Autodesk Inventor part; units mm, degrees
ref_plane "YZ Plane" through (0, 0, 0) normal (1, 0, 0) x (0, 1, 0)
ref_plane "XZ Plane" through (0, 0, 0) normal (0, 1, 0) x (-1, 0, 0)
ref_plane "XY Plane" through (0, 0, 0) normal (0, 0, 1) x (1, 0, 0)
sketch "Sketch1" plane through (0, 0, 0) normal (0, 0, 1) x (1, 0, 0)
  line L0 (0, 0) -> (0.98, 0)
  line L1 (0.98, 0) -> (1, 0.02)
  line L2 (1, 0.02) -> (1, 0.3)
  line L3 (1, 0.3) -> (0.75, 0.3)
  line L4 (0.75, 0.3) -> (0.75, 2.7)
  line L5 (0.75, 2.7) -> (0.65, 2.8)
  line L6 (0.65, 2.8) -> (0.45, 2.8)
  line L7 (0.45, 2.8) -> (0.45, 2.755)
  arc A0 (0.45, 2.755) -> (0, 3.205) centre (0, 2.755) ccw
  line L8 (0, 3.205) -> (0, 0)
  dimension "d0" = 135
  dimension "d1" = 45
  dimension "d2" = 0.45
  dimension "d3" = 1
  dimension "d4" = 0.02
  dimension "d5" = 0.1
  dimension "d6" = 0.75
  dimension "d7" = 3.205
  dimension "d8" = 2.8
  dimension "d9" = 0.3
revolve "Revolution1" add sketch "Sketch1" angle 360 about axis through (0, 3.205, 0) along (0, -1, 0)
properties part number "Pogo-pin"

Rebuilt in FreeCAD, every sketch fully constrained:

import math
import FreeCAD as App
import Part
import Sketcher
Q = App.Units.Quantity

doc = App.newDocument("Part")
body = doc.addObject("PartDesign::Body", "Body")

# Sketch on XY plane
sketch1 = body.newObject("Sketcher::SketchObject", "Sketch")
sketch1.AttachmentSupport = (doc.getObject("XY_Plane"), [""])
sketch1.MapMode = "FlatFace"
sketch1.addGeometry([
    Part.LineSegment(App.Vector(0, 3.205, 0), App.Vector(0, 0, 0)),  # 0
    Part.LineSegment(App.Vector(0, 0, 0), App.Vector(0.98, 0, 0)),  # 1
    Part.LineSegment(App.Vector(0.98, 0, 0), App.Vector(1, 0.02, 0)),  # 2
    Part.LineSegment(App.Vector(1, 0.02, 0), App.Vector(1, 0.3, 0)),  # 3
    Part.LineSegment(App.Vector(1, 0.3, 0), App.Vector(0.75, 0.3, 0)),  # 4
    Part.LineSegment(App.Vector(0.75, 0.3, 0), App.Vector(0.75, 2.7, 0)),  # 5
    Part.LineSegment(App.Vector(0.75, 2.7, 0), App.Vector(0.65, 2.8, 0)),  # 6
    Part.LineSegment(App.Vector(0.65, 2.8, 0), App.Vector(0.45, 2.8, 0)),  # 7
    Part.LineSegment(App.Vector(0.45, 2.8, 0), App.Vector(0.45, 2.755, 0)),  # 8
    Part.ArcOfCircle(Part.Circle(App.Vector(0, 2.755, 0), App.Vector(0, 0, 1), 0.45), math.radians(0), math.radians(90)),  # 9
], False)
sketch1.addConstraint([
    Sketcher.Constraint("Coincident", 0, 2, 1, 1),
    Sketcher.Constraint("Coincident", 1, 2, 2, 1),
    Sketcher.Constraint("Coincident", 2, 2, 3, 1),
    Sketcher.Constraint("Coincident", 3, 2, 4, 1),
    Sketcher.Constraint("Coincident", 4, 2, 5, 1),
    Sketcher.Constraint("Coincident", 5, 2, 6, 1),
    Sketcher.Constraint("Coincident", 6, 2, 7, 1),
    Sketcher.Constraint("Coincident", 7, 2, 8, 1),
    Sketcher.Constraint("Tangent", 8, 2, 9, 1),
    Sketcher.Constraint("Coincident", 9, 2, 0, 1),
    Sketcher.Constraint("Vertical", 0),
    Sketcher.Constraint("Horizontal", 1),
    Sketcher.Constraint("Vertical", 3),
    Sketcher.Constraint("Horizontal", 4),
    Sketcher.Constraint("Vertical", 5),
    Sketcher.Constraint("Horizontal", 7),
    Sketcher.Constraint("Vertical", 8),
    Sketcher.Constraint("Coincident", 0, 2, -1, 1),
    Sketcher.Constraint("PointOnObject", 9, 3, -2),
    Sketcher.Constraint("Perpendicular", 2, 6),
    Sketcher.Constraint("Angle", 2, Q("45 deg")),
    Sketcher.Constraint("Radius", 9, Q("0.45 mm")),
    Sketcher.Constraint("DistanceX", -1, 1, 2, 2, Q("1 mm")),
    Sketcher.Constraint("DistanceY", -1, 1, 3, 2, Q("0.3 mm")),
    Sketcher.Constraint("DistanceY", -1, 1, 6, 2, Q("2.8 mm")),
    Sketcher.Constraint("DistanceX", 6, 2, 5, 2, Q("0.1 mm")),
    Sketcher.Constraint("DistanceX", 7, 2, 5, 2, Q("0.3 mm")),
    Sketcher.Constraint("DistanceY", 0, 2, 0, 1, Q("3.205 mm")),
    Sketcher.Constraint("DistanceY", -1, 1, 2, 2, Q("0.02 mm")),
])
revolution = body.newObject("PartDesign::Revolution", "Revolution")
revolution.Profile = sketch1
revolution.ReferenceAxis = (sketch1, ["V_Axis"])
revolution.Angle = 360

doc.recompute()
